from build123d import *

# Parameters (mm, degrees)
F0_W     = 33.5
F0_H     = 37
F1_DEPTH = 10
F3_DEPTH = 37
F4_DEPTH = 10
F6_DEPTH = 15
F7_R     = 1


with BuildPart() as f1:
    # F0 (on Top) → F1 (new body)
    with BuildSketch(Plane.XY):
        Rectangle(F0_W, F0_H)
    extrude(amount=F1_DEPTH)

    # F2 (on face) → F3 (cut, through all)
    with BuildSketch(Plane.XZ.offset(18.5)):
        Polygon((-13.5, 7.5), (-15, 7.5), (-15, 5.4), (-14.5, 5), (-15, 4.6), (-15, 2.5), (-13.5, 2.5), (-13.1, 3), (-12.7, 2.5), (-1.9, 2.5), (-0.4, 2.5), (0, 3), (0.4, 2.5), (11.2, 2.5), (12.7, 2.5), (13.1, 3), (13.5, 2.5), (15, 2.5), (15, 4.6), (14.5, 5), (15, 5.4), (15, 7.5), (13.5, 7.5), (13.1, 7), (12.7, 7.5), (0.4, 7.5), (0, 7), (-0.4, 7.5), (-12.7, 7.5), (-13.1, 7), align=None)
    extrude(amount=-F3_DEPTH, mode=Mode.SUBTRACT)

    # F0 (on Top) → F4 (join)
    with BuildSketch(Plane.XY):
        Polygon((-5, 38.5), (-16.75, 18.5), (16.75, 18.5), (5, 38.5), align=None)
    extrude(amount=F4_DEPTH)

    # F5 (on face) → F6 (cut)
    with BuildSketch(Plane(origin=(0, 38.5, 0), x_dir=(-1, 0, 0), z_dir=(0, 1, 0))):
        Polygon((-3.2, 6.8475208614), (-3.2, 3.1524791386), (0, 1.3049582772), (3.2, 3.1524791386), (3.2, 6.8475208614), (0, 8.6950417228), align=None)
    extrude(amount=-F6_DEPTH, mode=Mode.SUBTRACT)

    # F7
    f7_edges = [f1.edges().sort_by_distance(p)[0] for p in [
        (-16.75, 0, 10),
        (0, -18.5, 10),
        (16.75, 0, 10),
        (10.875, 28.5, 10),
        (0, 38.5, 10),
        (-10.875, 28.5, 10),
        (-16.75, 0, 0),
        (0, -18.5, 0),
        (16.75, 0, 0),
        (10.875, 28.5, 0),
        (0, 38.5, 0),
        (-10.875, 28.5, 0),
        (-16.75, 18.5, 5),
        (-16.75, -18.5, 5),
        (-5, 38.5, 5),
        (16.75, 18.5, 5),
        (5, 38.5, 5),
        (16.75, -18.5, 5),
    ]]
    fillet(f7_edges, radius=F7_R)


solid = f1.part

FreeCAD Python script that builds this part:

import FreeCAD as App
import Part
import Sketcher
Q = App.Units.Quantity


def edges_at(feature, points):
    """Names of the edges that pass closest to the given points."""
    edges = feature.Shape.Edges
    near = lambda p: min(range(len(edges)), key=lambda i: edges[i].distToShape(Part.Vertex(*p))[0])
    return sorted({f"Edge{near(p) + 1}" for p in points})


def add_polygon(sketch, points):
    """Adds a closed chain of lines whose ends are joined by coincident constraints."""
    first, n = sketch.GeometryCount, len(points)
    for a, b in zip(points, points[1:] + points[:1]):
        sketch.addGeometry(Part.LineSegment(App.Vector(*a, 0), App.Vector(*b, 0)), False)
    for i in range(n):
        sketch.addConstraint(Sketcher.Constraint("Coincident", first + i, 2, first + (i + 1) % n, 1))

doc = App.newDocument("Part")
body = doc.addObject("PartDesign::Body", "Body")

# Sketch on XY plane
sketch1 = body.newObject("Sketcher::SketchObject", "Sketch")
sketch1.AttachmentSupport = (doc.getObject("XY_Plane"), [""])
sketch1.MapMode = "FlatFace"
add_polygon(sketch1, [(-17, 18), (-17, -18), (17, -18), (17, 18)])  # lines 0-3
sketch1.addConstraint([
    Sketcher.Constraint("Vertical", 0),
    Sketcher.Constraint("Horizontal", 1),
    Sketcher.Constraint("Vertical", 2),
    Sketcher.Constraint("Horizontal", 3),
    Sketcher.Constraint("Symmetric", 0, 2, 2, 2, -1, 1),
    Sketcher.Constraint("DistanceY", 0, 2, 0, 1, Q("37 mm")),
    Sketcher.Constraint("DistanceX", 1, 1, 1, 2, Q("33.5 mm")),
])
pad1 = body.newObject("PartDesign::Pad", "Pad")
pad1.Profile = sketch1
pad1.Length = 10

# Sketch on XZ plane
sketch2 = body.newObject("Sketcher::SketchObject", "Sketch001")
sketch2.AttachmentSupport = (doc.getObject("XZ_Plane"), [""])
sketch2.MapMode = "FlatFace"
sketch2.AttachmentOffset = App.Placement(App.Vector(0, 0, 18.5), App.Rotation())
add_polygon(sketch2, [(-13.5, 7.5), (-15, 7.5), (-15, 5.4), (-14.5, 5), (-15, 4.6), (-15, 2.5), (-13.5, 2.5), (-13.1, 3), (-12.7, 2.5), (-0.4, 2.5), (0, 3), (0.4, 2.5), (12.7, 2.5), (13.1, 3), (13.5, 2.5), (15, 2.5), (15, 4.6), (14.5, 5), (15, 5.4), (15, 7.5), (13.5, 7.5), (13.1, 7), (12.7, 7.5), (0.4, 7.5), (0, 7), (-0.4, 7.5), (-12.7, 7.5), (-13.1, 7)])  # lines 0-27
sketch2.addConstraint([
    Sketcher.Constraint("Horizontal", 0),
    Sketcher.Constraint("Vertical", 1),
    Sketcher.Constraint("Vertical", 4),
    Sketcher.Constraint("Horizontal", 5),
    Sketcher.Constraint("Horizontal", 8),
    Sketcher.Constraint("Horizontal", 11),
    Sketcher.Constraint("Horizontal", 14),
    Sketcher.Constraint("Vertical", 15),
    Sketcher.Constraint("Vertical", 18),
    Sketcher.Constraint("Horizontal", 19),
    Sketcher.Constraint("Horizontal", 22),
    Sketcher.Constraint("Horizontal", 25),
    Sketcher.Constraint("Symmetric", 8, 2, 10, 2, -2),
    Sketcher.Constraint("Symmetric", 6, 2, 12, 2, -2),
    Sketcher.Constraint("Symmetric", 5, 2, 13, 2, -2),
    Sketcher.Constraint("Symmetric", 3, 2, 15, 2, -2),
    Sketcher.Constraint("Symmetric", 2, 2, 16, 2, -2),
    Sketcher.Constraint("Symmetric", 1, 2, 17, 2, -2),
    Sketcher.Constraint("Symmetric", 22, 2, 24, 2, -2),
    Sketcher.Constraint("Symmetric", 20, 2, 26, 2, -2),
    Sketcher.Constraint("Symmetric", 19, 2, 27, 2, -2),
    Sketcher.Constraint("PointOnObject", 9, 2, -2),
    Sketcher.Constraint("PointOnObject", 23, 2, -2),
    Sketcher.Constraint("Perpendicular", 2, 6),
    Sketcher.Constraint("Perpendicular", 3, 7),
    Sketcher.Constraint("Parallel", 6, 9),
    Sketcher.Constraint("Parallel", 7, 10),
    Sketcher.Constraint("Parallel", 9, 12),
    Sketcher.Constraint("Perpendicular", 16, 20),
    Sketcher.Constraint("Perpendicular", 17, 21),
    Sketcher.Constraint("Parallel", 20, 23),
    Sketcher.Constraint("Parallel", 23, 26),
    Sketcher.Constraint("Horizontal", 5, 2, 7, 2),
    Sketcher.Constraint("Horizontal", 6, 2, 9, 2),
    Sketcher.Constraint("Horizontal", 19, 2, 21, 2),
    Sketcher.Constraint("Horizontal", 20, 2, 23, 2),
    Sketcher.Constraint("Vertical", 1, 2, 3, 2),
    Sketcher.Constraint("Vertical", 13, 2, 19, 2),
    Sketcher.Constraint("Vertical", 12, 2, 20, 2),
    Sketcher.Constraint("Equal", 1, 4),
    Sketcher.Constraint("Equal", 3, 6),
    Sketcher.Constraint("DistanceX", 0, 2, 0, 1, Q("1.5 mm")),
    Sketcher.Constraint("DistanceX", 8, 1, 8, 2, Q("12.3 mm")),
    Sketcher.Constraint("DistanceY", 1, 2, 1, 1, Q("2.1 mm")),
    Sketcher.Constraint("DistanceX", 0, 2, -1, 1, Q("15 mm")),
    Sketcher.Constraint("DistanceY", -1, 1, 2, 2, Q("5 mm")),
    Sketcher.Constraint("DistanceY", -1, 1, 6, 2, Q("3 mm")),
])
pocket1 = body.newObject("PartDesign::Pocket", "Pocket")
pocket1.Profile = sketch2
pocket1.Type = "ThroughAll"

# Sketch on XY plane
sketch3 = body.newObject("Sketcher::SketchObject", "Sketch002")
sketch3.AttachmentSupport = (doc.getObject("XY_Plane"), [""])
sketch3.MapMode = "FlatFace"
add_polygon(sketch3, [(-5, 38), (-17, 18), (17, 18), (5, 38)])  # lines 0-3
sketch3.addConstraint([
    Sketcher.Constraint("Horizontal", 1),
    Sketcher.Constraint("Horizontal", 3),
    Sketcher.Constraint("Equal", 0, 2),
    Sketcher.Constraint("DistanceX", 3, 2, 3, 1, Q("10 mm")),
    Sketcher.Constraint("DistanceX", 1, 1, 1, 2, Q("33.5 mm")),
    Sketcher.Constraint("DistanceX", -1, 1, 2, 2, Q("5 mm")),
    Sketcher.Constraint("DistanceY", 1, 2, 2, 2, Q("20 mm")),
    Sketcher.Constraint("DistanceY", -1, 1, 0, 2, Q("18.5 mm")),
])
pad2 = body.newObject("PartDesign::Pad", "Pad001")
pad2.Profile = sketch3
pad2.Length = 10

# Sketch on XZ plane
sketch4 = body.newObject("Sketcher::SketchObject", "Sketch003")
sketch4.AttachmentSupport = (doc.getObject("XZ_Plane"), [""])
sketch4.MapMode = "FlatFace"
sketch4.AttachmentOffset = App.Placement(App.Vector(0, 0, -38.5), App.Rotation())
add_polygon(sketch4, [(3.2, 6.8), (3.2, 3.2), (0, 1.3), (-3.2, 3.2), (-3.2, 6.8), (0, 8.7)])  # lines 0-5
sketch4.addConstraint([
    Sketcher.Constraint("Vertical", 0),
    Sketcher.Constraint("Vertical", 3),
    Sketcher.Constraint("Symmetric", 0, 2, 2, 2, -2),
    Sketcher.Constraint("PointOnObject", 1, 2, -2),
    Sketcher.Constraint("PointOnObject", 4, 2, -2),
    Sketcher.Constraint("Parallel", 1, 4),
    Sketcher.Constraint("Parallel", 2, 5),
    Sketcher.Constraint("Angle", 1, Q("-150 deg")),
    Sketcher.Constraint("DistanceX", -1, 1, 0, 2, Q("3.2 mm")),
    Sketcher.Constraint("DistanceY", 0, 2, 0, 1, Q("3.695042 mm")),
    Sketcher.Constraint("DistanceY", -1, 1, 0, 2, Q("3.152479 mm")),
])
pocket2 = body.newObject("PartDesign::Pocket", "Pocket001")
pocket2.Profile = sketch4
pocket2.Length = 15
pocket2.Reversed = True
doc.recompute()

fillet = body.newObject("PartDesign::Fillet", "Fillet")
fillet.Base = (pocket2, edges_at(pocket2, [
    (-16.75, 0, 10),
    (0, -18.5, 10),
    (16.75, 0, 10),
    (10.875, 28.5, 10),
    (0, 38.5, 10),
    (-10.875, 28.5, 10),
    (-16.75, 0, 0),
    (0, -18.5, 0),
    (16.75, 0, 0),
    (10.875, 28.5, 0),
    (0, 38.5, 0),
    (-10.875, 28.5, 0),
    (-16.75, 18.5, 5),
    (-16.75, -18.5, 5),
    (-5, 38.5, 5),
    (16.75, 18.5, 5),
    (5, 38.5, 5),
    (16.75, -18.5, 5),
]))
fillet.Radius = 1

doc.recompute()
